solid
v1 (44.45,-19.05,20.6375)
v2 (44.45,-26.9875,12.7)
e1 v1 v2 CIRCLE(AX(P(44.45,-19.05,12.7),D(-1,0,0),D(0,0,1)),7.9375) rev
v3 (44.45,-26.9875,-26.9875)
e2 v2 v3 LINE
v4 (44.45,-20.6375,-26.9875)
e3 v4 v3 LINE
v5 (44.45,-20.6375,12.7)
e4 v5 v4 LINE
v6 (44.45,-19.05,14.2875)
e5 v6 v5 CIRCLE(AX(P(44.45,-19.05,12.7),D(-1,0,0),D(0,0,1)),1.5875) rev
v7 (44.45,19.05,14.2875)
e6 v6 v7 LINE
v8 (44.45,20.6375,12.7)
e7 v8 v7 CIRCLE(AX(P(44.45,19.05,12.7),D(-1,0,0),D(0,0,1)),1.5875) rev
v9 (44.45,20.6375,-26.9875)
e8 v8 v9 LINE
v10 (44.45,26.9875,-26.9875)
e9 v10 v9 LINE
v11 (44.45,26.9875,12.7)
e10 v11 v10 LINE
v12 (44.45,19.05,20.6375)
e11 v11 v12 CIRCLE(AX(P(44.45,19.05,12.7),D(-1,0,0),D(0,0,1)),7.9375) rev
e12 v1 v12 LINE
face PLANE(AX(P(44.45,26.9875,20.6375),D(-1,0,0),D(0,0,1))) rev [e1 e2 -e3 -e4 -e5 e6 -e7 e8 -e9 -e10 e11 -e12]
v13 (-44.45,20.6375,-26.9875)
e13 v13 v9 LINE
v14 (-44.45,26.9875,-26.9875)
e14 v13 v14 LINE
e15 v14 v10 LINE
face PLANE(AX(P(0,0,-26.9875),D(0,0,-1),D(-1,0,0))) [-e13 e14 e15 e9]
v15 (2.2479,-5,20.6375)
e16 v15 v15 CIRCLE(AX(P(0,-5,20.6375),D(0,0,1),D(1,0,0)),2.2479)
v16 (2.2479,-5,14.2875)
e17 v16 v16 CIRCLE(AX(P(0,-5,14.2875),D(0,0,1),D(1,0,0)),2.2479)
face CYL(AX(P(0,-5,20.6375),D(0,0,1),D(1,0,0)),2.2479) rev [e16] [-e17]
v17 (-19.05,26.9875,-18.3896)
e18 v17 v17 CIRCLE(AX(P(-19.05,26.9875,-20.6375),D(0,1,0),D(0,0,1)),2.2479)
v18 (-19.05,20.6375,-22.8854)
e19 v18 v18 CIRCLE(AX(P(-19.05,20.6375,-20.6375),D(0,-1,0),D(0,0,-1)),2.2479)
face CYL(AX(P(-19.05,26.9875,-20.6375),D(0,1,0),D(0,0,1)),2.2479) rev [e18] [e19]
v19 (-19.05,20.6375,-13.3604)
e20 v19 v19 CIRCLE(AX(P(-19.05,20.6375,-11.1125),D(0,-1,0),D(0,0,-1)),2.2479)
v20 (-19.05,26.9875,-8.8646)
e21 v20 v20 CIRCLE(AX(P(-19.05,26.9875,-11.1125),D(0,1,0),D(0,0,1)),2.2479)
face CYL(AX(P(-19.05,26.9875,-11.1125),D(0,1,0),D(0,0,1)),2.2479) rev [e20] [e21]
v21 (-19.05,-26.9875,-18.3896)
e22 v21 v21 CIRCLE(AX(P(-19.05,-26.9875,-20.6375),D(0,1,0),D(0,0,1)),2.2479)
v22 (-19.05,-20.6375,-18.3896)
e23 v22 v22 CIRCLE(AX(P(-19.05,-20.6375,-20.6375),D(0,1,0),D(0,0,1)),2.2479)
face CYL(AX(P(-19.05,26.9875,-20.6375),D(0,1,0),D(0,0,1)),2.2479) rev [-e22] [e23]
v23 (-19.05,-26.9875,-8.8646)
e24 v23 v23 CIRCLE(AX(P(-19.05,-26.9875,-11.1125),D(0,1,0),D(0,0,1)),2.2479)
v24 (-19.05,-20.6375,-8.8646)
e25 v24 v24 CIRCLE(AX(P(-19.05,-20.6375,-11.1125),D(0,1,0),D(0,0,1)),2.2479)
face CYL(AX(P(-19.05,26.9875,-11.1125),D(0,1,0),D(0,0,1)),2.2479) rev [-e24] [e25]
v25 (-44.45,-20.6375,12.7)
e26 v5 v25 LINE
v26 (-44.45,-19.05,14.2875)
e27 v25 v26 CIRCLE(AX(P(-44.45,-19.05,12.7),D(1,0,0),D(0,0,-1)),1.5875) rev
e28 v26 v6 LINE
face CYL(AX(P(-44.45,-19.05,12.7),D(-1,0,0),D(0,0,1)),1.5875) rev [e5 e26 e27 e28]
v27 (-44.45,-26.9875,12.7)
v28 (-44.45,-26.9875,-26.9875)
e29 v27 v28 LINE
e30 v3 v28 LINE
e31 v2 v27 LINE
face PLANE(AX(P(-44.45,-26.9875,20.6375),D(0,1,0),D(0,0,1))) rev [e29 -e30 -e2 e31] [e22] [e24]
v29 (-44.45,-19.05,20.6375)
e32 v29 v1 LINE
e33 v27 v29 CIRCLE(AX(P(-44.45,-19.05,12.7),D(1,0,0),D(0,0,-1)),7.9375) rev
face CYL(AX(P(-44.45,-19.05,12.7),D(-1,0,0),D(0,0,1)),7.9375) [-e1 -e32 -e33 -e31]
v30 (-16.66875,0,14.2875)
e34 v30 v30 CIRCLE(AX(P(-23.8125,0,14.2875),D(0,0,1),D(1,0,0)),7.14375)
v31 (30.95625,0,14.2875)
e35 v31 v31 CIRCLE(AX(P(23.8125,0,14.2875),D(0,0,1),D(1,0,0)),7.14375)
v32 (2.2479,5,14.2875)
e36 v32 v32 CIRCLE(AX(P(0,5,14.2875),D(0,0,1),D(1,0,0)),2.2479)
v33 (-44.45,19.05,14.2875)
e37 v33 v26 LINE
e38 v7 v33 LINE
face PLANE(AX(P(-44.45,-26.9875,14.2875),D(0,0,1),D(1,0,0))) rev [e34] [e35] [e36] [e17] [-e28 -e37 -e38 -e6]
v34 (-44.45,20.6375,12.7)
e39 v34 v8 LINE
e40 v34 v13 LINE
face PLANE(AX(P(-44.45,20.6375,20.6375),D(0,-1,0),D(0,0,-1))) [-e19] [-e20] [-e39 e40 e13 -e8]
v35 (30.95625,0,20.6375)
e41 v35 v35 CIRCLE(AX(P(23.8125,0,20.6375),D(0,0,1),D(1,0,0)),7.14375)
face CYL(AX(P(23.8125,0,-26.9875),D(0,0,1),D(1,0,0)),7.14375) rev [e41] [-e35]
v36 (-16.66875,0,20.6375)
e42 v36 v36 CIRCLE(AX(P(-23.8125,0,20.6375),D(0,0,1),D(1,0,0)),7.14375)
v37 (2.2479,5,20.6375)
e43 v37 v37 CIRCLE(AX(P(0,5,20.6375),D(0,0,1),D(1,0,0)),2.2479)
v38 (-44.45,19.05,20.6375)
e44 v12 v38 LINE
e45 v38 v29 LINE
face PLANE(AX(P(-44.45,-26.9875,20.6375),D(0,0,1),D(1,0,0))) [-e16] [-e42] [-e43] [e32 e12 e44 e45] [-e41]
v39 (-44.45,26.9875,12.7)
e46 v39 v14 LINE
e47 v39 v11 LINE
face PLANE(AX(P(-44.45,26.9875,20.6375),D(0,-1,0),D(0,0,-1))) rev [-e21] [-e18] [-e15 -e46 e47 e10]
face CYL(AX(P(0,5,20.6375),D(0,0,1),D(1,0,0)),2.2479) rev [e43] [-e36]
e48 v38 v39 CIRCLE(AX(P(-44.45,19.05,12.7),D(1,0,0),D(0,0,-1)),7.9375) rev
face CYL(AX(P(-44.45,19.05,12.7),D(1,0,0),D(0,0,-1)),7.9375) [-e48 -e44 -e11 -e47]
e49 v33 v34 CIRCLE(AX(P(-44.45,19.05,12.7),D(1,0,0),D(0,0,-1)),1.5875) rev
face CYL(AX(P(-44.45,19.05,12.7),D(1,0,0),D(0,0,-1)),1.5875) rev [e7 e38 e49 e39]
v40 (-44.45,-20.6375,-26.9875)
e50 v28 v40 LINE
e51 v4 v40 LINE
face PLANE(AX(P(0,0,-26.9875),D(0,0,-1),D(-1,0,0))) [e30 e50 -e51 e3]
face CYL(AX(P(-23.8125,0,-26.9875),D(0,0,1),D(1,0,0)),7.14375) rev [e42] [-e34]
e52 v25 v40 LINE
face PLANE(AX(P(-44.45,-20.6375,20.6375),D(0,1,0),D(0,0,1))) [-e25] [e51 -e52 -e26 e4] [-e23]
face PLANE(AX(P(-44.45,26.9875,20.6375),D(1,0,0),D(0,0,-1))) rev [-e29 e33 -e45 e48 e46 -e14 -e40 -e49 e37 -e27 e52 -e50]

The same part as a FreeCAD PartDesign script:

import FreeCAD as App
import Part
import Sketcher
Q = App.Units.Quantity


def edges_at(feature, points):
    """Names of the edges that pass closest to the given points."""
    edges = feature.Shape.Edges
    near = lambda p: min(range(len(edges)), key=lambda i: edges[i].distToShape(Part.Vertex(*p))[0])
    return sorted({f"Edge{near(p) + 1}" for p in points})


def faces_at(feature, points):
    """Names of the faces that lie closest to the given points."""
    faces = feature.Shape.Faces
    near = lambda p: min(range(len(faces)), key=lambda i: faces[i].distToShape(Part.Vertex(*p))[0])
    return sorted({f"Face{near(p) + 1}" for p in points})

doc = App.newDocument("Part")
body = doc.addObject("PartDesign::Body", "Body")

sketch1 = body.newObject("Sketcher::SketchObject", "Sketch")
sketch1.AttachmentSupport = (doc.getObject("XY_Plane"), [""])
sketch1.MapMode = "FlatFace"
sketch1.addGeometry(Part.LineSegment(App.Vector(-44.45, 26.9875, 0), App.Vector(-44.45, -26.9875, 0)), False)
sketch1.addGeometry(Part.LineSegment(App.Vector(-44.45, -26.9875, 0), App.Vector(44.45, -26.9875, 0)), False)
sketch1.addGeometry(Part.LineSegment(App.Vector(44.45, -26.9875, 0), App.Vector(44.45, 26.9875, 0)), False)
sketch1.addGeometry(Part.LineSegment(App.Vector(44.45, 26.9875, 0), App.Vector(-44.45, 26.9875, 0)), False)
sketch1.addConstraint(Sketcher.Constraint("Coincident", 0, 2, 1, 1))
sketch1.addConstraint(Sketcher.Constraint("Coincident", 1, 2, 2, 1))
sketch1.addConstraint(Sketcher.Constraint("Coincident", 2, 2, 3, 1))
sketch1.addConstraint(Sketcher.Constraint("Coincident", 3, 2, 0, 1))
sketch1.addConstraint(Sketcher.Constraint("Vertical", 0))
sketch1.addConstraint(Sketcher.Constraint("Horizontal", 1))
sketch1.addConstraint(Sketcher.Constraint("Vertical", 2))
sketch1.addConstraint(Sketcher.Constraint("Horizontal", 3))
sketch1.addConstraint(Sketcher.Constraint("Symmetric", 0, 2, 2, 2, -1, 1))
sketch1.addConstraint(Sketcher.Constraint("DistanceX", 1, 1, 1, 2, Q("3.5 in")))
sketch1.addConstraint(Sketcher.Constraint("DistanceY", 0, 2, 0, 1, Q("2.125 in")))
pad1 = body.newObject("PartDesign::Pad", "Pad")
pad1.Profile = sketch1
pad1.Length = Q("1.625 in")
pad1.Midplane = True
doc.recompute()

fillet = body.newObject("PartDesign::Fillet", "Fillet")
fillet.Base = (pad1, edges_at(pad1, [(0, 26.988, 20.637), (0, -26.988, 20.637)]))
fillet.Radius = Q("0.3125 in")

sketch2 = body.newObject("Sketcher::SketchObject", "Sketch001")
sketch2.AttachmentSupport = (doc.getObject("XY_Plane"), [""])
sketch2.MapMode = "FlatFace"
sketch2.AttachmentOffset = App.Placement(App.Vector(0, 0, -0.8125 * 25.4), App.Rotation())
sketch2.addGeometry(Part.LineSegment(App.Vector(44.45, 26.9875, 0), App.Vector(44.45, -26.9875, 0)), False)
sketch2.addGeometry(Part.LineSegment(App.Vector(44.45, -26.9875, 0), App.Vector(-44.45, -26.9875, 0)), False)
sketch2.addGeometry(Part.LineSegment(App.Vector(-44.45, -26.9875, 0), App.Vector(-44.45, 26.9875, 0)), False)
sketch2.addGeometry(Part.LineSegment(App.Vector(-44.45, 26.9875, 0), App.Vector(44.45, 26.9875, 0)), False)
sketch2.addConstraint(Sketcher.Constraint("Coincident", 0, 2, 1, 1))
sketch2.addConstraint(Sketcher.Constraint("Coincident", 1, 2, 2, 1))
sketch2.addConstraint(Sketcher.Constraint("Coincident", 2, 2, 3, 1))
sketch2.addConstraint(Sketcher.Constraint("Coincident", 3, 2, 0, 1))
sketch2.addConstraint(Sketcher.Constraint("Vertical", 0))
sketch2.addConstraint(Sketcher.Constraint("Horizontal", 1))
sketch2.addConstraint(Sketcher.Constraint("Vertical", 2))
sketch2.addConstraint(Sketcher.Constraint("Horizontal", 3))
sketch2.addConstraint(Sketcher.Constraint("Symmetric", 0, 2, 2, 2, -1, 1))
sketch2.addConstraint(Sketcher.Constraint("DistanceX", 1, 2, 1, 1, Q("3.5 in")))
sketch2.addConstraint(Sketcher.Constraint("DistanceY", 0, 2, 0, 1, Q("2.125 in")))
pad2 = body.newObject("PartDesign::Pad", "Pad001")
pad2.Profile = sketch2
pad2.Length = Q("0.25 in")
pad2.Reversed = True
doc.recompute()

thickness = body.newObject("PartDesign::Thickness", "Thickness")
thickness.Base = (pad2, faces_at(pad2, [(0, 0, -26.988), (44.45, 0, -3.175), (-44.45, 0, -3.175)]))
thickness.Value = Q("0.25 in")
thickness.Reversed = True
thickness.Join = "Intersection"

sketch3 = body.newObject("Sketcher::SketchObject", "Sketch002")
sketch3.AttachmentSupport = (doc.getObject("XY_Plane"), [""])
sketch3.MapMode = "FlatFace"
sketch3.AttachmentOffset = App.Placement(App.Vector(0, 0, 0.8125 * 25.4), App.Rotation())
sketch3.addGeometry(Part.Circle(App.Vector(-23.8125, 0, 0), App.Vector(0, 0, 1), 7.14375), False)
sketch3.addGeometry(Part.Circle(App.Vector(23.8125, 0, 0), App.Vector(0, 0, 1), 7.14375), False)
sketch3.addConstraint(Sketcher.Constraint("Equal", 0, 1))
sketch3.addConstraint(Sketcher.Constraint("Symmetric", 0, 3, 1, 3, -1, 1))
sketch3.addConstraint(Sketcher.Constraint("PointOnObject", 0, 3, -1))
sketch3.addConstraint(Sketcher.Constraint("Diameter", 0, Q("0.5625 in")))
sketch3.addConstraint(Sketcher.Constraint("DistanceX", 0, 3, -1, 1, Q("0.9375 in")))
pocket1 = body.newObject("PartDesign::Pocket", "Pocket")
pocket1.Profile = sketch3
pocket1.Length = Q("1.875 in")

sketch4 = body.newObject("Sketcher::SketchObject", "Sketch003")
sketch4.AttachmentSupport = (doc.getObject("XZ_Plane"), [""])
sketch4.MapMode = "FlatFace"
sketch4.AttachmentOffset = App.Placement(App.Vector(0, 0, -1.0625 * 25.4), App.Rotation())
sketch4.addGeometry(Part.Circle(App.Vector(-19.05, -11.1125, 0), App.Vector(0, 0, 1), 2.2479), False)
sketch4.addGeometry(Part.Circle(App.Vector(-19.05, -20.6375, 0), App.Vector(0, 0, 1), 2.2479), False)
sketch4.addConstraint(Sketcher.Constraint("Equal", 0, 1))
sketch4.addConstraint(Sketcher.Constraint("Vertical", 0, 3, 1, 3))
sketch4.addConstraint(Sketcher.Constraint("Diameter", 0, Q("0.177 in")))
sketch4.addConstraint(Sketcher.Constraint("DistanceX", 0, 3, -1, 1, Q("0.75 in")))
sketch4.addConstraint(Sketcher.Constraint("DistanceY", 0, 3, -1, 1, Q("0.4375 in")))
sketch4.addConstraint(Sketcher.Constraint("DistanceY", 1, 3, -1, 1, Q("0.8125 in")))
doc.recompute()
hole = body.newObject("PartDesign::Hole", "Hole")
hole.Profile = sketch4
hole.ThreadType = "None"
hole.Diameter = Q("0.177 in")
hole.DepthType = "ThroughAll"
hole.Reversed = True

sketch5 = body.newObject("Sketcher::SketchObject", "Sketch004")
sketch5.AttachmentSupport = (doc.getObject("XY_Plane"), [""])
sketch5.MapMode = "FlatFace"
sketch5.AttachmentOffset = App.Placement(App.Vector(0, 0, 0.8125 * 25.4), App.Rotation())
sketch5.addGeometry(Part.Circle(App.Vector(0, -5, 0), App.Vector(0, 0, 1), 2.2479), False)
sketch5.addGeometry(Part.Circle(App.Vector(0, 5, 0), App.Vector(0, 0, 1), 2.2479), False)
sketch5.addConstraint(Sketcher.Constraint("Equal", 0, 1))
sketch5.addConstraint(Sketcher.Constraint("Symmetric", 0, 3, 1, 3, -1, 1))
sketch5.addConstraint(Sketcher.Constraint("PointOnObject", 0, 3, -2))
sketch5.addConstraint(Sketcher.Constraint("Diameter", 0, Q("0.177 in")))
sketch5.addConstraint(Sketcher.Constraint("DistanceY", 0, 3, -1, 1, 5.0))
doc.recompute()
hole2 = body.newObject("PartDesign::Hole", "Hole001")
hole2.Profile = sketch5
hole2.ThreadType = "None"
hole2.Diameter = Q("0.177 in")
hole2.DepthType = "ThroughAll"

doc.recompute()
